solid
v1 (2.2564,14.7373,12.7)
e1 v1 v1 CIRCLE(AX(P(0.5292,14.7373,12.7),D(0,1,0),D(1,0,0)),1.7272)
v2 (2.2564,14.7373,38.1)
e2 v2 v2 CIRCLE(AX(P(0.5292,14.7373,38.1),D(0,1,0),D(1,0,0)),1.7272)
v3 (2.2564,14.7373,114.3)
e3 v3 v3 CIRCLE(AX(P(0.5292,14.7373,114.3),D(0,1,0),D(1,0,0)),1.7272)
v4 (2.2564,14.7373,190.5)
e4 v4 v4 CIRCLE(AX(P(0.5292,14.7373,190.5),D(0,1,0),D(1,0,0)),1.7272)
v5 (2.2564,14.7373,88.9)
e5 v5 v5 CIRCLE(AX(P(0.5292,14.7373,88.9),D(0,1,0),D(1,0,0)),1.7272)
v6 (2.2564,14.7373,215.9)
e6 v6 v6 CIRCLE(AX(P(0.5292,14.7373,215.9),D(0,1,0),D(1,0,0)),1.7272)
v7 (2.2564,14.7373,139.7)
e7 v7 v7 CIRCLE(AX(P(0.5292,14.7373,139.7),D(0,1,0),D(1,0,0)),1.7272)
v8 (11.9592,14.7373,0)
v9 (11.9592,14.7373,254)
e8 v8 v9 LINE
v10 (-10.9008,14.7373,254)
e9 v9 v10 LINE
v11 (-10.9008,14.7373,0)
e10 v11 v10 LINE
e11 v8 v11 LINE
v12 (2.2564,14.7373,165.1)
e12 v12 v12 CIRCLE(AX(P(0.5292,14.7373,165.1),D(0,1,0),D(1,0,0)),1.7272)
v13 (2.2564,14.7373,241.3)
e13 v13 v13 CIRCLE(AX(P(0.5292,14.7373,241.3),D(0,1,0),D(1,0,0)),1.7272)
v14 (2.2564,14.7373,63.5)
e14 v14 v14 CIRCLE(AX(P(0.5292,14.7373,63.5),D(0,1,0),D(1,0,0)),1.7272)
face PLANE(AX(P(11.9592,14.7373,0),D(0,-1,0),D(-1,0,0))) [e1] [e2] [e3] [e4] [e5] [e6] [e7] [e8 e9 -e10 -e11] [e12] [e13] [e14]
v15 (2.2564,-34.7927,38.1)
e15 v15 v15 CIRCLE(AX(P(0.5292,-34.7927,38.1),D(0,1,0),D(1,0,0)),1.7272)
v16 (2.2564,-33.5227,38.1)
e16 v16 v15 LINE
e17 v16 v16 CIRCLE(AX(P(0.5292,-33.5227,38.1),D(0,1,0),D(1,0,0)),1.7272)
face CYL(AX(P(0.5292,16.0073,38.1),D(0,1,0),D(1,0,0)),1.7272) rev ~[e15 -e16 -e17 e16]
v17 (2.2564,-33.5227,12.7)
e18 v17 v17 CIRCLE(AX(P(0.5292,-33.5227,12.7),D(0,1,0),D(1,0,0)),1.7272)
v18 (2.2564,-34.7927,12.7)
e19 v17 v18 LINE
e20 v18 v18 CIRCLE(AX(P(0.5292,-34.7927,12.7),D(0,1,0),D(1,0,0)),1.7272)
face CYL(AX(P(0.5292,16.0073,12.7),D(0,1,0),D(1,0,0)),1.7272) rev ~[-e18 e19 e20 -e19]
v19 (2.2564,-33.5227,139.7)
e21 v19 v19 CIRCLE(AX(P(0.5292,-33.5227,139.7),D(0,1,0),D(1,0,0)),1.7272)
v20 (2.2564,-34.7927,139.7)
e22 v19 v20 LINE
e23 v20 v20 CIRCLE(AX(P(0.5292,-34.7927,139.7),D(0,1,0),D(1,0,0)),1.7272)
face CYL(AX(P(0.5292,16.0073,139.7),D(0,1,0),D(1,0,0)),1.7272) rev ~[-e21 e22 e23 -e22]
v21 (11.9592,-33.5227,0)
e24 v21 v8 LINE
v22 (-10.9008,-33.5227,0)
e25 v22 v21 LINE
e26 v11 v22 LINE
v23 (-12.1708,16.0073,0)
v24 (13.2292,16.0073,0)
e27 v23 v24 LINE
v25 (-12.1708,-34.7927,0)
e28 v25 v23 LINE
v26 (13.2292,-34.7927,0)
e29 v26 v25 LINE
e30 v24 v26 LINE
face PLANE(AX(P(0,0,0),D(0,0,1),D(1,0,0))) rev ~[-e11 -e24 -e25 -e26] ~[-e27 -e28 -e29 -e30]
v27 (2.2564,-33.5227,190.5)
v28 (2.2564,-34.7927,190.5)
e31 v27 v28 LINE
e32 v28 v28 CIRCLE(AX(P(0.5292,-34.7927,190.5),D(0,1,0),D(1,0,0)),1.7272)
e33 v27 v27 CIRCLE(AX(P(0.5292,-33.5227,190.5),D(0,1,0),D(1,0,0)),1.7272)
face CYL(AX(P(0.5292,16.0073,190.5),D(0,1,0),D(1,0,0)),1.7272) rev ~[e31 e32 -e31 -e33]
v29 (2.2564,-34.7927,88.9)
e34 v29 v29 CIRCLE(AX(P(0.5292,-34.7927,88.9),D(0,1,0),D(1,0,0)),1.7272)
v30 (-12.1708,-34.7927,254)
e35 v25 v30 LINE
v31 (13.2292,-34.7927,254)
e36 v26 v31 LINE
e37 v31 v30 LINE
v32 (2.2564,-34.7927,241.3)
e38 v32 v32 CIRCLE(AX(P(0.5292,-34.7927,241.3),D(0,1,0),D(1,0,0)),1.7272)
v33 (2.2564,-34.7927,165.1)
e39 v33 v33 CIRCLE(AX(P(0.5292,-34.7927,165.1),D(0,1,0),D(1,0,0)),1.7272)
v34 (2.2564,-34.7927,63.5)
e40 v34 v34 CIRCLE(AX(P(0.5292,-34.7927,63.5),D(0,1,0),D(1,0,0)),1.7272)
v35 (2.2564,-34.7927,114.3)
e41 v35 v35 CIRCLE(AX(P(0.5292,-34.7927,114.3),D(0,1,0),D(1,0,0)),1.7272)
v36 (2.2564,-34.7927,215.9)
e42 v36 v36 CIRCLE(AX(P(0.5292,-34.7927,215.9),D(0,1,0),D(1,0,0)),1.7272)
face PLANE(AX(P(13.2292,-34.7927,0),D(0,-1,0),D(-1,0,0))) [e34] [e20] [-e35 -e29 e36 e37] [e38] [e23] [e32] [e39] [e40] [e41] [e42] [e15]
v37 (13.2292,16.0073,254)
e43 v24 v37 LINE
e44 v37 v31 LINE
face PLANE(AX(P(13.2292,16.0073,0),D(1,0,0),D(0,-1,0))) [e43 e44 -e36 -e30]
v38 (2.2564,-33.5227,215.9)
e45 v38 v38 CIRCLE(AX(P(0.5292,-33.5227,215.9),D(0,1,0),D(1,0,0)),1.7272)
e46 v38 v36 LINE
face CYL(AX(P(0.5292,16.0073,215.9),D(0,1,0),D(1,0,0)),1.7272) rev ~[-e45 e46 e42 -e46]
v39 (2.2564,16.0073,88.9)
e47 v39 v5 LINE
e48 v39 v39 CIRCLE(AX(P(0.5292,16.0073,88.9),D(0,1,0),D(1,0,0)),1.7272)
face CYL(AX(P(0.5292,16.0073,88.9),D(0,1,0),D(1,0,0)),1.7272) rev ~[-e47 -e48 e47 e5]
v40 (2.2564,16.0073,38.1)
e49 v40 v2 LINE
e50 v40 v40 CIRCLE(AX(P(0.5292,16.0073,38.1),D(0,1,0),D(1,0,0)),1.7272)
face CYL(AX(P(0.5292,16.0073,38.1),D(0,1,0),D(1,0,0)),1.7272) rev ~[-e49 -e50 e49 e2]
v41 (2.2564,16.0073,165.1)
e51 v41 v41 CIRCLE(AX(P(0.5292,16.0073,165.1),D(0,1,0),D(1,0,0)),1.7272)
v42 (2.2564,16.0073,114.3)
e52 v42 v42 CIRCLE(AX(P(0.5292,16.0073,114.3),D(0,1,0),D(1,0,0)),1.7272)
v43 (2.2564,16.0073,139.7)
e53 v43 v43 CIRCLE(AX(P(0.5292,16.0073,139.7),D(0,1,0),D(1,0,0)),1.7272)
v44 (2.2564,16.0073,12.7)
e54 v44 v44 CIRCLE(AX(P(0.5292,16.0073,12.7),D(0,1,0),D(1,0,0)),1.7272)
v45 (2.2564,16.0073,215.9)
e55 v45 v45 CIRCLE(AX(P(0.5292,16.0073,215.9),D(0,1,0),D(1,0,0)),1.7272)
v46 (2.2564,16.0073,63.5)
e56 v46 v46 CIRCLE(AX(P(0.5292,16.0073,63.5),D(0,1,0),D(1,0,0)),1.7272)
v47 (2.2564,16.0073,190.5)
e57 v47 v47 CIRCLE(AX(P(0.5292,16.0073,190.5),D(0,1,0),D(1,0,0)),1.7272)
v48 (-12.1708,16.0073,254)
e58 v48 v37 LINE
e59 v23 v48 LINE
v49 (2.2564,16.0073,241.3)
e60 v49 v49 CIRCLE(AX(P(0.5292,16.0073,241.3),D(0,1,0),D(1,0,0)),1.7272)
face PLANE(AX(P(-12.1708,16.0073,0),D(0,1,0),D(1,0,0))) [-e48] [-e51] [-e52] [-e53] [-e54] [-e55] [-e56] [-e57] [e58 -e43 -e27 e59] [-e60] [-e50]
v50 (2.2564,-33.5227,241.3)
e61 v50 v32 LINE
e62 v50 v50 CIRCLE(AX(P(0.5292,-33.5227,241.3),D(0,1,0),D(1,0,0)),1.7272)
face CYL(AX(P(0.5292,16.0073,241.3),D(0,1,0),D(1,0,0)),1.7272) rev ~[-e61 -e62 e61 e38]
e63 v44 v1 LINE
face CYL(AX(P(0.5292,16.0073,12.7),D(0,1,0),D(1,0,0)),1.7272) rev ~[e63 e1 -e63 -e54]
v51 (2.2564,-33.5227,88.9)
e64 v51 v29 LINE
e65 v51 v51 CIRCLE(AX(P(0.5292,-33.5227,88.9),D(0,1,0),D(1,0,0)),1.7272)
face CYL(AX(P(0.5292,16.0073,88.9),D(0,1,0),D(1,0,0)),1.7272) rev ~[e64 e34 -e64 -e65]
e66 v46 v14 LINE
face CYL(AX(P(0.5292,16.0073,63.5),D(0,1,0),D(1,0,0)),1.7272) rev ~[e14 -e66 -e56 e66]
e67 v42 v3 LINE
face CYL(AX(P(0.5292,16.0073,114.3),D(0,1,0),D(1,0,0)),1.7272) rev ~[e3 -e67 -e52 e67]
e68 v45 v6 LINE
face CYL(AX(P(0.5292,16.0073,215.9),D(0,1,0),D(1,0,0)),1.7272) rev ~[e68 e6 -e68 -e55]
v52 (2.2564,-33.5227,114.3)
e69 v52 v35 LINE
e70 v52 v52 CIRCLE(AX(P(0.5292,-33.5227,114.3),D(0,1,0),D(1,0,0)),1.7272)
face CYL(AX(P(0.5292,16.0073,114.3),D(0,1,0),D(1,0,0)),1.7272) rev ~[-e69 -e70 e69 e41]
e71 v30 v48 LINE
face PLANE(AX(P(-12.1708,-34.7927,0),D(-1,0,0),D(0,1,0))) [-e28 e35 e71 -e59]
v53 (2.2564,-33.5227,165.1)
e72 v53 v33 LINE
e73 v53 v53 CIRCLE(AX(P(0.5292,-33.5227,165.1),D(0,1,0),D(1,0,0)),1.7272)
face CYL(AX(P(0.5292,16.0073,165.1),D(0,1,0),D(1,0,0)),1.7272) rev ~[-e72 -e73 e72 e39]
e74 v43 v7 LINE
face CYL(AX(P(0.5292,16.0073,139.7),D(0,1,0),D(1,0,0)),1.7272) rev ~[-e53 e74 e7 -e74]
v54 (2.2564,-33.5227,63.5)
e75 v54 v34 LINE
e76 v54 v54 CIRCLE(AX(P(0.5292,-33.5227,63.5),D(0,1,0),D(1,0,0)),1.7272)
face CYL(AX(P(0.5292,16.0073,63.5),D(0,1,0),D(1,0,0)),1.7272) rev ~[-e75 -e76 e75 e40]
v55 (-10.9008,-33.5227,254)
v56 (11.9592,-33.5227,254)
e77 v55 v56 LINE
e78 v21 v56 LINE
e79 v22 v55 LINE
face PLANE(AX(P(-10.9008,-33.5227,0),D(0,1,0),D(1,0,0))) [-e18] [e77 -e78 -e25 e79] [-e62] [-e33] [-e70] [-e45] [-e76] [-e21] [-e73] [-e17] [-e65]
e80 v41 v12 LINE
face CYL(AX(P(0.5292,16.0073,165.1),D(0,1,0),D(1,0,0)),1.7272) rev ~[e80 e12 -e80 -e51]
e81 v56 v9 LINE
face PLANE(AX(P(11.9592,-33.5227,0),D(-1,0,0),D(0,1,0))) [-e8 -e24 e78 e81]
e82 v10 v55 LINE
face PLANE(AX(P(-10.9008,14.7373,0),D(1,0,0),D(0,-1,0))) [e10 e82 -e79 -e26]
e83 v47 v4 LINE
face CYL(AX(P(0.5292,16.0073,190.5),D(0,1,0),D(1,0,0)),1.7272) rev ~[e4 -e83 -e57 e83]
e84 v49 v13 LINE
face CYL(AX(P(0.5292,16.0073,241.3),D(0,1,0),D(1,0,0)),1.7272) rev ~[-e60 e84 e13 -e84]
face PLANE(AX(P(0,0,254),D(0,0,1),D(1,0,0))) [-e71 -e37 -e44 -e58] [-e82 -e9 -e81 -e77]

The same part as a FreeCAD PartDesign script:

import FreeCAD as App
import Part
import Sketcher
Q = App.Units.Quantity

doc = App.newDocument("Part")
body = doc.addObject("PartDesign::Body", "Body")

# Sketch on XY plane
sketch1 = doc.addObject("Sketcher::SketchObject", "Sketch")
body.addObject(sketch1)
sketch1.AttachmentSupport = (doc.XY_Plane, [""])
sketch1.MapMode = "FlatFace"
sketch1.addGeometry([
    Part.LineSegment(App.Vector(13, 16, 0), App.Vector(-12, 16, 0)),  # 0
    Part.LineSegment(App.Vector(-12, 16, 0), App.Vector(-12, -35, 0)),  # 1
    Part.LineSegment(App.Vector(-12, -35, 0), App.Vector(13, -35, 0)),  # 2
    Part.LineSegment(App.Vector(13, -35, 0), App.Vector(13, 16, 0)),  # 3
    Part.LineSegment(App.Vector(-11, 15, 0), App.Vector(12, 15, 0)),  # 4
    Part.LineSegment(App.Vector(12, 15, 0), App.Vector(12, -34, 0)),  # 5
    Part.LineSegment(App.Vector(12, -34, 0), App.Vector(-11, -34, 0)),  # 6
    Part.LineSegment(App.Vector(-11, -34, 0), App.Vector(-11, 15, 0)),  # 7
], False)
sketch1.addConstraint([
    Sketcher.Constraint("Coincident", 0, 2, 1, 1),
    Sketcher.Constraint("Coincident", 1, 2, 2, 1),
    Sketcher.Constraint("Coincident", 2, 2, 3, 1),
    Sketcher.Constraint("Coincident", 3, 2, 0, 1),
    Sketcher.Constraint("Coincident", 4, 2, 5, 1),
    Sketcher.Constraint("Coincident", 5, 2, 6, 1),
    Sketcher.Constraint("Coincident", 6, 2, 7, 1),
    Sketcher.Constraint("Coincident", 7, 2, 4, 1),
    Sketcher.Constraint("Horizontal", 0),
    Sketcher.Constraint("Vertical", 1),
    Sketcher.Constraint("Horizontal", 2),
    Sketcher.Constraint("Vertical", 3),
    Sketcher.Constraint("Horizontal", 4),
    Sketcher.Constraint("Vertical", 5),
    Sketcher.Constraint("Horizontal", 6),
    Sketcher.Constraint("Vertical", 7),
    Sketcher.Constraint("DistanceX", 0, 2, 0, 1, Q("1 in")),
    Sketcher.Constraint("DistanceY", 1, 2, 1, 1, Q("2 in")),
    Sketcher.Constraint("DistanceX", 4, 2, 3, 2, Q("0.05 in")),
    Sketcher.Constraint("DistanceY", 4, 2, 3, 2, Q("0.05 in")),
    Sketcher.Constraint("DistanceY", 2, 2, 5, 2, Q("0.05 in")),
    Sketcher.Constraint("DistanceX", 1, 2, 6, 2, Q("0.05 in")),
    Sketcher.Constraint("DistanceY", -1, 1, 0, 2, Q("0.6302 in")),
    Sketcher.Constraint("DistanceX", 0, 2, -1, 1, Q("12.1708 mm")),
])
pad1 = doc.addObject("PartDesign::Pad", "Pad")
body.addObject(pad1)
pad1.Profile = sketch1
pad1.Length = Q("10 in")

# Sketch on XZ plane
sketch2 = doc.addObject("Sketcher::SketchObject", "Sketch001")
body.addObject(sketch2)
sketch2.AttachmentSupport = (doc.XZ_Plane, [""])
sketch2.MapMode = "FlatFace"
sketch2.AttachmentOffset = App.Placement(App.Vector(0, 0, -0.6302087 * 25.4), App.Rotation())
sketch2.addGeometry(Part.Circle(App.Vector(0.5, 12.7, 0), App.Vector(0, 0, 1), 1.7), False)
sketch2.addConstraint([
    Sketcher.Constraint("Diameter", 0, Q("0.136 in")),
    Sketcher.Constraint("DistanceY", -1, 1, 0, 3, Q("0.5 in")),
    Sketcher.Constraint("DistanceX", -1, 1, 0, 3, Q("0.5292 mm")),
])
pocket1 = doc.addObject("PartDesign::Pocket", "Pocket")
body.addObject(pocket1)
pocket1.Profile = sketch2
pocket1.Type = "ThroughAll"
pocket1.Reversed = True
doc.recompute()

linearpattern = doc.addObject("PartDesign::LinearPattern", "LinearPattern")
body.addObject(linearpattern)
linearpattern.Originals = [pocket1]
linearpattern.Direction = (doc.Z_Axis, [""])
linearpattern.Mode = "offset"
linearpattern.Offset = Q("1 in")
linearpattern.Occurrences = 10
body.Tip = linearpattern

doc.recompute()
